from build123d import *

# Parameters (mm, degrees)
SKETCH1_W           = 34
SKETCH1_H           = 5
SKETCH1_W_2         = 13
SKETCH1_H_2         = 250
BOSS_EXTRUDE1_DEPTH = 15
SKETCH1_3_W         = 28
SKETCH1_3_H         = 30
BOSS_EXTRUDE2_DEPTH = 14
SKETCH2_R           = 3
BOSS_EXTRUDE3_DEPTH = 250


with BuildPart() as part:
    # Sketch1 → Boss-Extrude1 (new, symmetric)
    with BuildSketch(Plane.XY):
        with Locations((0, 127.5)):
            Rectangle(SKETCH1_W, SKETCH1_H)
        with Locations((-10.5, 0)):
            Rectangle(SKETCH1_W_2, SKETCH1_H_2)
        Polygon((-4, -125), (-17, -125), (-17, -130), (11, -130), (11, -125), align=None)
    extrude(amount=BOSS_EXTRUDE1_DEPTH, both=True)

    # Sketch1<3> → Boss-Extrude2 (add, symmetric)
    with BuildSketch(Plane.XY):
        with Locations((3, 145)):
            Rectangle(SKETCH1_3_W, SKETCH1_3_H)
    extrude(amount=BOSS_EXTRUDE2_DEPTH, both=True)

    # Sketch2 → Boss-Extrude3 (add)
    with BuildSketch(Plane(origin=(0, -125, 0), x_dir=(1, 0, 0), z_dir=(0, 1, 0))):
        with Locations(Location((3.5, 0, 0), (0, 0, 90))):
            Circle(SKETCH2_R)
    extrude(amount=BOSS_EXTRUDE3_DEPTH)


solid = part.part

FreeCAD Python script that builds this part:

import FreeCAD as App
import Part
import Sketcher

V = App.Vector
Q = App.Units.Quantity

doc = App.newDocument("Part")
params = doc.addObject("Spreadsheet::Sheet", "Params")
for row, (alias, value) in enumerate([
    ("sketch1_width", "28 mm"),
    ("sketch1_width2", "15 mm"),
    ("sketch1_width3", "21 mm"),
    ("sketch1_height", "260 mm"),
    ("sketch1_height2", "5 mm"),
    ("pad1_length", "30 mm"),
    ("sketch2_width", "28 mm"),
    ("sketch2_height", "30 mm"),
    ("pad2_length", "28 mm"),
    ("sketch3_diameter", "6 mm"),
    ("pad3_length", "250 mm"),
], start=1):
    params.set(f"A{row}", alias)
    params.set(f"B{row}", "=" + value)
    params.setAlias(f"B{row}", alias)

body = doc.addObject("PartDesign::Body", "Body")

sketch1 = body.newObject("Sketcher::SketchObject", "Sketch")
sketch1.AttachmentSupport = (doc.getObject("XY_Plane"), [""])
sketch1.MapMode = "FlatFace"
sketch1.addGeometry(Part.LineSegment(V(-17, 130, 0), V(-17, -130, 0)), False)
sketch1.addGeometry(Part.LineSegment(V(-17, -130, 0), V(11, -130, 0)), False)
sketch1.addGeometry(Part.LineSegment(V(11, -130, 0), V(11, -125, 0)), False)
sketch1.addGeometry(Part.LineSegment(V(11, -125, 0), V(-4, -125, 0)), False)
sketch1.addGeometry(Part.LineSegment(V(-4, -125, 0), V(-4, 125, 0)), False)
sketch1.addGeometry(Part.LineSegment(V(-4, 125, 0), V(17, 125, 0)), False)
sketch1.addGeometry(Part.LineSegment(V(17, 125, 0), V(17, 130, 0)), False)
sketch1.addGeometry(Part.LineSegment(V(17, 130, 0), V(-17, 130, 0)), False)
sketch1.addConstraint(Sketcher.Constraint("Coincident", 0, 2, 1, 1))
sketch1.addConstraint(Sketcher.Constraint("Coincident", 1, 2, 2, 1))
sketch1.addConstraint(Sketcher.Constraint("Coincident", 2, 2, 3, 1))
sketch1.addConstraint(Sketcher.Constraint("Coincident", 3, 2, 4, 1))
sketch1.addConstraint(Sketcher.Constraint("Coincident", 4, 2, 5, 1))
sketch1.addConstraint(Sketcher.Constraint("Coincident", 5, 2, 6, 1))
sketch1.addConstraint(Sketcher.Constraint("Coincident", 6, 2, 7, 1))
sketch1.addConstraint(Sketcher.Constraint("Coincident", 7, 2, 0, 1))
sketch1.addConstraint(Sketcher.Constraint("Vertical", 0))
sketch1.addConstraint(Sketcher.Constraint("Horizontal", 1))
sketch1.addConstraint(Sketcher.Constraint("Vertical", 2))
sketch1.addConstraint(Sketcher.Constraint("Horizontal", 3))
sketch1.addConstraint(Sketcher.Constraint("Vertical", 4))
sketch1.addConstraint(Sketcher.Constraint("Horizontal", 5))
sketch1.addConstraint(Sketcher.Constraint("Vertical", 6))
sketch1.addConstraint(Sketcher.Constraint("Horizontal", 7))
sketch1.addConstraint(Sketcher.Constraint("Symmetric", 0, 2, 6, 2, -1, 1))
sketch1.addConstraint(Sketcher.Constraint("Equal", 2, 6))
sketch1.addConstraint(Sketcher.Constraint("DistanceX", 1, 1, 1, 2, Q("28 mm")))
sketch1.addConstraint(Sketcher.Constraint("DistanceX", 3, 2, 3, 1, Q("15 mm")))
sketch1.addConstraint(Sketcher.Constraint("DistanceX", 5, 1, 5, 2, Q("21 mm")))
sketch1.addConstraint(Sketcher.Constraint("DistanceY", 0, 2, 0, 1, Q("260 mm")))
sketch1.addConstraint(Sketcher.Constraint("DistanceY", 2, 1, 2, 2, Q("5 mm")))
sketch1.setExpression("Constraints[18]", "Params.sketch1_width")
sketch1.setExpression("Constraints[19]", "Params.sketch1_width2")
sketch1.setExpression("Constraints[20]", "Params.sketch1_width3")
sketch1.setExpression("Constraints[21]", "Params.sketch1_height")
sketch1.setExpression("Constraints[22]", "Params.sketch1_height2")
pad1 = body.newObject("PartDesign::Pad", "Pad")
pad1.Profile = sketch1
pad1.setExpression("Length", "Params.pad1_length")
pad1.Midplane = True

sketch2 = body.newObject("Sketcher::SketchObject", "Sketch001")
sketch2.AttachmentSupport = (doc.getObject("XY_Plane"), [""])
sketch2.MapMode = "FlatFace"
sketch2.addGeometry(Part.LineSegment(V(-11, 160, 0), V(-11, 130, 0)), False)
sketch2.addGeometry(Part.LineSegment(V(-11, 130, 0), V(17, 130, 0)), False)
sketch2.addGeometry(Part.LineSegment(V(17, 130, 0), V(17, 160, 0)), False)
sketch2.addGeometry(Part.LineSegment(V(17, 160, 0), V(-11, 160, 0)), False)
sketch2.addConstraint(Sketcher.Constraint("Coincident", 0, 2, 1, 1))
sketch2.addConstraint(Sketcher.Constraint("Coincident", 1, 2, 2, 1))
sketch2.addConstraint(Sketcher.Constraint("Coincident", 2, 2, 3, 1))
sketch2.addConstraint(Sketcher.Constraint("Coincident", 3, 2, 0, 1))
sketch2.addConstraint(Sketcher.Constraint("Vertical", 0))
sketch2.addConstraint(Sketcher.Constraint("Horizontal", 1))
sketch2.addConstraint(Sketcher.Constraint("Vertical", 2))
sketch2.addConstraint(Sketcher.Constraint("Horizontal", 3))
sketch2.addConstraint(Sketcher.Constraint("DistanceX", 1, 1, 1, 2, Q("28 mm")))
sketch2.addConstraint(Sketcher.Constraint("DistanceY", 0, 2, 0, 1, Q("30 mm")))
sketch2.addConstraint(Sketcher.Constraint("DistanceX", 0, 2, -1, 1, Q("11 mm")))
sketch2.addConstraint(Sketcher.Constraint("DistanceY", -1, 1, 0, 2, Q("130 mm")))
sketch2.setExpression("Constraints[8]", "Params.sketch2_width")
sketch2.setExpression("Constraints[9]", "Params.sketch2_height")
pad2 = body.newObject("PartDesign::Pad", "Pad001")
pad2.Profile = sketch2
pad2.setExpression("Length", "Params.pad2_length")
pad2.Midplane = True

sketch3 = body.newObject("Sketcher::SketchObject", "Sketch002")
sketch3.AttachmentSupport = (doc.getObject("XZ_Plane"), [""])
sketch3.MapMode = "FlatFace"
sketch3.AttachmentOffset = App.Placement(V(0, 0, 125), App.Rotation())
sketch3.addGeometry(Part.Circle(V(3.5, 0, 0), V(0, 0, 1), 3), False)
sketch3.addConstraint(Sketcher.Constraint("PointOnObject", 0, 3, -1))
sketch3.addConstraint(Sketcher.Constraint("Diameter", 0, Q("6 mm")))
sketch3.addConstraint(Sketcher.Constraint("DistanceX", -1, 1, 0, 3, Q("3.5 mm")))
sketch3.setExpression("Constraints[1]", "Params.sketch3_diameter")
pad3 = body.newObject("PartDesign::Pad", "Pad002")
pad3.Profile = sketch3
pad3.setExpression("Length", "Params.pad3_length")
pad3.Reversed = True

doc.recompute()
